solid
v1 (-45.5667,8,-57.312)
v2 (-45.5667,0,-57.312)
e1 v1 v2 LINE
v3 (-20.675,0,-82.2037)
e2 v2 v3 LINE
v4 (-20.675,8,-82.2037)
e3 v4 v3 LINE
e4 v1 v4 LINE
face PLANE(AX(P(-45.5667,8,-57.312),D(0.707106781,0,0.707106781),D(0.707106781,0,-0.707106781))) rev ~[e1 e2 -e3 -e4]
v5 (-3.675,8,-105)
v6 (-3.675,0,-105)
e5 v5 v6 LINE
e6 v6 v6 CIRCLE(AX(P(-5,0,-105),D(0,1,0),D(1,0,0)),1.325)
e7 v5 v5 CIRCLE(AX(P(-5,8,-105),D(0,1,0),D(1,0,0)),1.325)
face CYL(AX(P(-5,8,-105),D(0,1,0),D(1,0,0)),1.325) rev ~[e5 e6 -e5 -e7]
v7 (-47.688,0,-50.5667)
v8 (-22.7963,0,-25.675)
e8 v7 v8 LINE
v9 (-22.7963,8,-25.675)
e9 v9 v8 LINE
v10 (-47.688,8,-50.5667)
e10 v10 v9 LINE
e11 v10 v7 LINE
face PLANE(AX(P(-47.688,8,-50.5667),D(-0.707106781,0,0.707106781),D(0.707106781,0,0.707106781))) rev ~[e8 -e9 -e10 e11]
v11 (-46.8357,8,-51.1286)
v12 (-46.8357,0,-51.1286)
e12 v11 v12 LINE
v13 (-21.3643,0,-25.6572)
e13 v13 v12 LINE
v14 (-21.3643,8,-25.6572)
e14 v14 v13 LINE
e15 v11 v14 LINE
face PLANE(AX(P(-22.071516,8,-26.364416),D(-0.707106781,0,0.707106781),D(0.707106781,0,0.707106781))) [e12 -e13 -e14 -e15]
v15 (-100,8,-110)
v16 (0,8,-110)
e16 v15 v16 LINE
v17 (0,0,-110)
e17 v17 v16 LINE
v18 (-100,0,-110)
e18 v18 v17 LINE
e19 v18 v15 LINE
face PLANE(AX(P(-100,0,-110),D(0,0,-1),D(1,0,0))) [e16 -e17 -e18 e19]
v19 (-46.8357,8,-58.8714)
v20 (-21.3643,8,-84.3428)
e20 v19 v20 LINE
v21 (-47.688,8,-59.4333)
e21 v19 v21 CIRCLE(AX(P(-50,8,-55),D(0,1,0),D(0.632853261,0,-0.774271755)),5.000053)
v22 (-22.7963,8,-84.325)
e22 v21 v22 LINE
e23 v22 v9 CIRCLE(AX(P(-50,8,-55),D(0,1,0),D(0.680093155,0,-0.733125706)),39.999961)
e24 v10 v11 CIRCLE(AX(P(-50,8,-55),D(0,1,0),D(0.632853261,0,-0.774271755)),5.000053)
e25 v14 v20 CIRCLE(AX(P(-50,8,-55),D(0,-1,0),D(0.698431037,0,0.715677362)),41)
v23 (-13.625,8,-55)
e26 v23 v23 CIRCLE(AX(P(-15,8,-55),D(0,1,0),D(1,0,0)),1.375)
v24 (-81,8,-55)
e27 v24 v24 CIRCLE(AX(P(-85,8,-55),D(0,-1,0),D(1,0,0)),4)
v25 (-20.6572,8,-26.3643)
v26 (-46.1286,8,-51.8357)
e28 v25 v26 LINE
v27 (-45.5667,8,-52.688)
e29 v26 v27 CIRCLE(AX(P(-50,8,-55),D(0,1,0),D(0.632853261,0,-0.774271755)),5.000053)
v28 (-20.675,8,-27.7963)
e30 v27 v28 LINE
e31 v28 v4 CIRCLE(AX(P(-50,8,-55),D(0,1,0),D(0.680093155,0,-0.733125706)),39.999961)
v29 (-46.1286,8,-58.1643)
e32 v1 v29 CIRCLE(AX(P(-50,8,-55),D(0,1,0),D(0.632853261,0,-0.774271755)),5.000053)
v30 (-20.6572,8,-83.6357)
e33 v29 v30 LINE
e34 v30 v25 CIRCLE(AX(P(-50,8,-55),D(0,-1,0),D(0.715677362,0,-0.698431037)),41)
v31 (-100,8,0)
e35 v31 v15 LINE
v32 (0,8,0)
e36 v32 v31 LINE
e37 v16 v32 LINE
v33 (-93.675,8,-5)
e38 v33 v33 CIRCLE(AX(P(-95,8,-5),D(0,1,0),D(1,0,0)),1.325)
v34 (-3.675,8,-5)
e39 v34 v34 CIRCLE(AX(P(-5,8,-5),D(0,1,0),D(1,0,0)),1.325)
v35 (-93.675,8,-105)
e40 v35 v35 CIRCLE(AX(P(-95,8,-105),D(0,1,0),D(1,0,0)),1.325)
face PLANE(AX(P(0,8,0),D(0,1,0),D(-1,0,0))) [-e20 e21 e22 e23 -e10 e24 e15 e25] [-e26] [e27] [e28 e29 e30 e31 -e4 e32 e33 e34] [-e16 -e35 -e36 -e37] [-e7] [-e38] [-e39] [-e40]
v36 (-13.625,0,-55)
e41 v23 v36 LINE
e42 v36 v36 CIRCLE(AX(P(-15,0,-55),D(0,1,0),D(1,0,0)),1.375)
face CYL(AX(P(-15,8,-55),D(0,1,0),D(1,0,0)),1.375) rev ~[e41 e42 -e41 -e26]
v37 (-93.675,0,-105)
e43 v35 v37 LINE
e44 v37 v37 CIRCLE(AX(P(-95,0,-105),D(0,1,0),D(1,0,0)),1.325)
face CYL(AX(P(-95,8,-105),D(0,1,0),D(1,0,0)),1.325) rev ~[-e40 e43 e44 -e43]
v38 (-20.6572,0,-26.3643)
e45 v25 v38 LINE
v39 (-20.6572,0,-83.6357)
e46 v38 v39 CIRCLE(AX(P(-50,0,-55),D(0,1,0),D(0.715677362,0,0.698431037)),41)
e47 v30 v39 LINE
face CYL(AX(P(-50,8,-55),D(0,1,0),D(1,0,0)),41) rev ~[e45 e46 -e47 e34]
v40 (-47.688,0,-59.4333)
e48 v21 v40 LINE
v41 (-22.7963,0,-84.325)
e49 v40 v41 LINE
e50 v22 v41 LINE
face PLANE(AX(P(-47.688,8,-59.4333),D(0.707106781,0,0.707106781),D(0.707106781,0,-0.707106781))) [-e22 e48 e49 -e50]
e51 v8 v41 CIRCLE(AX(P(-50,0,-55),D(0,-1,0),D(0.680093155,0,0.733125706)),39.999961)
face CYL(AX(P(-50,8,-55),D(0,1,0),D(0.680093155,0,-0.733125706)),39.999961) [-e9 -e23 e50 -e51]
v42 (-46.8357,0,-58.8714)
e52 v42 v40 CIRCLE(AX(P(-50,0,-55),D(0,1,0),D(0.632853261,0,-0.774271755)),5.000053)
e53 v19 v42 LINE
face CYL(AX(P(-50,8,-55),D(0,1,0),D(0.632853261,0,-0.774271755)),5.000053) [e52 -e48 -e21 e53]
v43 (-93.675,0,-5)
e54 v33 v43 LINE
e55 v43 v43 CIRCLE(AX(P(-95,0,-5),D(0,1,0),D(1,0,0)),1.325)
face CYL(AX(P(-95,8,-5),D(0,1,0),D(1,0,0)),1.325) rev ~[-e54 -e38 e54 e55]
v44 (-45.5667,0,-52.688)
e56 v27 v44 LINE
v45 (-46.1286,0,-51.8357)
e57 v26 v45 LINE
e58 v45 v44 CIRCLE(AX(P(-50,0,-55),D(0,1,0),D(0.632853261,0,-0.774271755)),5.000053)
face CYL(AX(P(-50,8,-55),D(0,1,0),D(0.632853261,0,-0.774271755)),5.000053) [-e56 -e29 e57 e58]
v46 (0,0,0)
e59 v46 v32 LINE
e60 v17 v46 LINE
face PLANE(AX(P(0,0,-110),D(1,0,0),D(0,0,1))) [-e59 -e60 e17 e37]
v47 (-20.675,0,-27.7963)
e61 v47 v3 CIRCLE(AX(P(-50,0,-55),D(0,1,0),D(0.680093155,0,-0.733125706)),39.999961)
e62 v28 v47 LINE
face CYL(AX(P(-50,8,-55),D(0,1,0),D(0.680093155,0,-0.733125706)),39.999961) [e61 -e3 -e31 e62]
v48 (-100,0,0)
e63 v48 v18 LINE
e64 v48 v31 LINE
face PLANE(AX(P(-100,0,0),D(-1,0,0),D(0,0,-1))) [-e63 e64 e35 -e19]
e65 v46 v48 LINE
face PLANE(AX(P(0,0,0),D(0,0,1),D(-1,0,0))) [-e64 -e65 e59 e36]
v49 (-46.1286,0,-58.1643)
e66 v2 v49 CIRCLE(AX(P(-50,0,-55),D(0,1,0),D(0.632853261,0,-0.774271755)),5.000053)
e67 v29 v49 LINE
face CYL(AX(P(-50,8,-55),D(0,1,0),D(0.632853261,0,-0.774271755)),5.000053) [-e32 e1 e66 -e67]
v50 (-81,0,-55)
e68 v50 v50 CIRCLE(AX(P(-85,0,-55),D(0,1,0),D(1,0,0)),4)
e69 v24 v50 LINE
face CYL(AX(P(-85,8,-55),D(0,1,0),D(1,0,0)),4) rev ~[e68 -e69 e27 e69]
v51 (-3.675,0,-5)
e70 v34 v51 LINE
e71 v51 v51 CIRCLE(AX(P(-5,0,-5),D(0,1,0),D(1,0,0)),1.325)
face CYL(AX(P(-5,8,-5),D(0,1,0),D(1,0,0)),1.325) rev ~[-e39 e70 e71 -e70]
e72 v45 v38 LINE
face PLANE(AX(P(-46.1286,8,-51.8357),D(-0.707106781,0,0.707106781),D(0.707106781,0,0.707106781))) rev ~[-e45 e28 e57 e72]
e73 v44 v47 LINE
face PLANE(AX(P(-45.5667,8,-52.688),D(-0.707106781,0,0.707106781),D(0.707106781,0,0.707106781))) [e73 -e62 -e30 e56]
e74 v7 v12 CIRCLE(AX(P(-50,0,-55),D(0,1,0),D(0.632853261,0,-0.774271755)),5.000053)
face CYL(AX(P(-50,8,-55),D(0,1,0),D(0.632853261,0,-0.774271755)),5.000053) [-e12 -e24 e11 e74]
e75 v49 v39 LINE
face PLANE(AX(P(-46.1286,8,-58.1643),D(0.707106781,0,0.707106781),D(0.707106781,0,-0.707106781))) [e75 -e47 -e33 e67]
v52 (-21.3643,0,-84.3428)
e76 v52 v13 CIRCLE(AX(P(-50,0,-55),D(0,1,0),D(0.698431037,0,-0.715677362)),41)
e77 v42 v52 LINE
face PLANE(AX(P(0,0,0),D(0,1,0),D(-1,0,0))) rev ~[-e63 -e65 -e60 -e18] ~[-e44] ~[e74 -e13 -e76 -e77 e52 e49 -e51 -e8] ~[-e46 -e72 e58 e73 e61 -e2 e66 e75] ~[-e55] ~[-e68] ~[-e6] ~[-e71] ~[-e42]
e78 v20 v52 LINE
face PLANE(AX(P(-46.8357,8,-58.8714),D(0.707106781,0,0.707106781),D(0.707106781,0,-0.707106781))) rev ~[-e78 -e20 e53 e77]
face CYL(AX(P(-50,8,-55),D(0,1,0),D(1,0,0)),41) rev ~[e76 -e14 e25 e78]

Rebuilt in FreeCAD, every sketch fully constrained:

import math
import FreeCAD as App
import Part
import Sketcher

V = App.Vector

doc = App.newDocument("Part")
body = doc.addObject("PartDesign::Body", "Body")

sketch1 = body.newObject("Sketcher::SketchObject", "Sketch")
sketch1.AttachmentSupport = (doc.getObject("XZ_Plane"), [""])
sketch1.MapMode = "FlatFace"
sketch1.addGeometry(Part.LineSegment(V(-100, 0, 0), V(0, 0, 0)), False)
sketch1.addGeometry(Part.LineSegment(V(0, 0, 0), V(0, -110, 0)), False)
sketch1.addGeometry(Part.LineSegment(V(0, -110, 0), V(-100, -110, 0)), False)
sketch1.addGeometry(Part.LineSegment(V(-100, -110, 0), V(-100, 0, 0)), False)
sketch1.addConstraint(Sketcher.Constraint("Coincident", 0, 2, 1, 1))
sketch1.addConstraint(Sketcher.Constraint("Coincident", 1, 2, 2, 1))
sketch1.addConstraint(Sketcher.Constraint("Coincident", 2, 2, 3, 1))
sketch1.addConstraint(Sketcher.Constraint("Coincident", 3, 2, 0, 1))
sketch1.addConstraint(Sketcher.Constraint("Horizontal", 0))
sketch1.addConstraint(Sketcher.Constraint("Vertical", 1))
sketch1.addConstraint(Sketcher.Constraint("Horizontal", 2))
sketch1.addConstraint(Sketcher.Constraint("Vertical", 3))
sketch1.addConstraint(Sketcher.Constraint("Coincident", 0, 2, -1, 1))
sketch1.addConstraint(Sketcher.Constraint("DistanceX", 0, 1, 0, 2, 100.0))
sketch1.addConstraint(Sketcher.Constraint("DistanceY", 1, 2, 1, 1, 110.0))
pad1 = body.newObject("PartDesign::Pad", "Pad")
pad1.Profile = sketch1
pad1.Length = 8
pad1.Reversed = True

sketch2 = body.newObject("Sketcher::SketchObject", "Sketch001")
sketch2.AttachmentSupport = (doc.getObject("XZ_Plane"), [""])
sketch2.MapMode = "FlatFace"
sketch2.AttachmentOffset = App.Placement(V(0, 0, -8), App.Rotation())
sketch2.addGeometry(Part.Circle(V(-95, -5, 0), V(0, 0, 1), 1.3), False)
sketch2.addGeometry(Part.Circle(V(-95, -105, 0), V(0, 0, 1), 1.3), False)
sketch2.addGeometry(Part.Circle(V(-5, -5, 0), V(0, 0, 1), 1.3), False)
sketch2.addGeometry(Part.Circle(V(-5, -105, 0), V(0, 0, 1), 1.3), False)
sketch2.addConstraint(Sketcher.Constraint("Equal", 0, 1))
sketch2.addConstraint(Sketcher.Constraint("Equal", 1, 2))
sketch2.addConstraint(Sketcher.Constraint("Equal", 2, 3))
sketch2.addConstraint(Sketcher.Constraint("Horizontal", 0, 3, 2, 3))
sketch2.addConstraint(Sketcher.Constraint("Horizontal", 1, 3, 3, 3))
sketch2.addConstraint(Sketcher.Constraint("Vertical", 0, 3, 1, 3))
sketch2.addConstraint(Sketcher.Constraint("Vertical", 2, 3, 3, 3))
sketch2.addConstraint(Sketcher.Constraint("Diameter", 0, 2.65))
sketch2.addConstraint(Sketcher.Constraint("DistanceY", 0, 3, -1, 1, 5.0))
sketch2.addConstraint(Sketcher.Constraint("DistanceX", 2, 3, -1, 1, 5.0))
sketch2.addConstraint(Sketcher.Constraint("DistanceX", 0, 3, -1, 1, 95.0))
sketch2.addConstraint(Sketcher.Constraint("DistanceY", 1, 3, -1, 1, 105.0))
pocket1 = body.newObject("PartDesign::Pocket", "Pocket")
pocket1.Profile = sketch2
pocket1.Length = 20
pocket1.Reversed = True

sketch3 = body.newObject("Sketcher::SketchObject", "Sketch002")
sketch3.AttachmentSupport = (doc.getObject("XZ_Plane"), [""])
sketch3.MapMode = "FlatFace"
sketch3.AttachmentOffset = App.Placement(V(0, 0, -8), App.Rotation())
sketch3.addGeometry(Part.ArcOfCircle(Part.Circle(V(-50, -55, 0), V(0, 0, 1), 41), math.radians(46), math.radians(314)), False)
sketch3.addGeometry(Part.LineSegment(V(-21.4, -25.7, 0), V(-46.8, -51.1, 0)), False)
sketch3.addGeometry(Part.ArcOfCircle(Part.Circle(V(-50, -55, 0), V(0, 0, 1), 5), math.radians(50.74), math.radians(62.46)), False)
sketch3.addGeometry(Part.LineSegment(V(-47.7, -50.6, 0), V(-22.8, -25.7, 0)), False)
sketch3.addGeometry(Part.ArcOfCircle(Part.Circle(V(-50, -55, 0), V(0, 0, 1), 40), math.radians(47), math.radians(313)), False)
sketch3.addGeometry(Part.LineSegment(V(-22.8, -84.3, 0), V(-47.7, -59.4, 0)), False)
sketch3.addGeometry(Part.ArcOfCircle(Part.Circle(V(-50, -55, 0), V(0, 0, 1), 5), math.radians(-62.46), math.radians(-50.74)), False)
sketch3.addGeometry(Part.LineSegment(V(-46.8, -58.9, 0), V(-21.4, -84.3, 0)), False)
sketch3.addGeometry(Part.LineSegment(V(-20.7, -83.6, 0), V(-46.1, -58.2, 0)), False)
sketch3.addGeometry(Part.ArcOfCircle(Part.Circle(V(-50, -55, 0), V(0, 0, 1), 5), math.radians(-39.26), math.radians(-27.54)), False)
sketch3.addGeometry(Part.LineSegment(V(-45.6, -57.3, 0), V(-20.7, -82.2, 0)), False)
sketch3.addGeometry(Part.ArcOfCircle(Part.Circle(V(-50, -55, 0), V(0, 0, 1), 40), math.radians(-43), math.radians(43)), False)
sketch3.addGeometry(Part.LineSegment(V(-20.7, -27.8, 0), V(-45.6, -52.7, 0)), False)
sketch3.addGeometry(Part.ArcOfCircle(Part.Circle(V(-50, -55, 0), V(0, 0, 1), 5), math.radians(27.54), math.radians(39.26)), False)
sketch3.addGeometry(Part.LineSegment(V(-46.1, -51.8, 0), V(-20.7, -26.4, 0)), False)
sketch3.addGeometry(Part.ArcOfCircle(Part.Circle(V(-50, -55, 0), V(0, 0, 1), 41), math.radians(-44), math.radians(44)), False)
sketch3.addGeometry(Part.Circle(V(-85, -55, 0), V(0, 0, 1), 4), False)
sketch3.addGeometry(Part.Circle(V(-15, -55, 0), V(0, 0, 1), 1.4), False)
sketch3.addConstraint(Sketcher.Constraint("Coincident", 0, 1, 1, 1))
sketch3.addConstraint(Sketcher.Constraint("Coincident", 1, 2, 2, 1))
sketch3.addConstraint(Sketcher.Constraint("Coincident", 2, 2, 3, 1))
sketch3.addConstraint(Sketcher.Constraint("Coincident", 3, 2, 4, 1))
sketch3.addConstraint(Sketcher.Constraint("Coincident", 4, 2, 5, 1))
sketch3.addConstraint(Sketcher.Constraint("Coincident", 5, 2, 6, 1))
sketch3.addConstraint(Sketcher.Constraint("Coincident", 6, 2, 7, 1))
sketch3.addConstraint(Sketcher.Constraint("Coincident", 7, 2, 0, 2))
sketch3.addConstraint(Sketcher.Constraint("Coincident", 8, 2, 9, 1))
sketch3.addConstraint(Sketcher.Constraint("Coincident", 9, 2, 10, 1))
sketch3.addConstraint(Sketcher.Constraint("Coincident", 10, 2, 11, 1))
sketch3.addConstraint(Sketcher.Constraint("Coincident", 11, 2, 12, 1))
sketch3.addConstraint(Sketcher.Constraint("Coincident", 12, 2, 13, 1))
sketch3.addConstraint(Sketcher.Constraint("Coincident", 13, 2, 14, 1))
sketch3.addConstraint(Sketcher.Constraint("Coincident", 14, 2, 15, 2))
sketch3.addConstraint(Sketcher.Constraint("Coincident", 15, 1, 8, 1))
sketch3.addConstraint(Sketcher.Constraint("Coincident", 2, 3, 0, 3))
sketch3.addConstraint(Sketcher.Constraint("Coincident", 4, 3, 0, 3))
sketch3.addConstraint(Sketcher.Constraint("Coincident", 6, 3, 0, 3))
sketch3.addConstraint(Sketcher.Constraint("Coincident", 9, 3, 0, 3))
sketch3.addConstraint(Sketcher.Constraint("Coincident", 11, 3, 0, 3))
sketch3.addConstraint(Sketcher.Constraint("Coincident", 13, 3, 0, 3))
sketch3.addConstraint(Sketcher.Constraint("Coincident", 15, 3, 0, 3))
sketch3.addConstraint(Sketcher.Constraint("Equal", 2, 6))
sketch3.addConstraint(Sketcher.Constraint("Equal", 6, 9))
sketch3.addConstraint(Sketcher.Constraint("Equal", 4, 11))
sketch3.addConstraint(Sketcher.Constraint("Equal", 9, 13))
sketch3.addConstraint(Sketcher.Constraint("Equal", 0, 15))
sketch3.addConstraint(Sketcher.Constraint("Parallel", 1, 3))
sketch3.addConstraint(Sketcher.Constraint("Perpendicular", 3, 5))
sketch3.addConstraint(Sketcher.Constraint("Parallel", 5, 7))
sketch3.addConstraint(Sketcher.Constraint("Parallel", 7, 8))
sketch3.addConstraint(Sketcher.Constraint("Parallel", 8, 10))
sketch3.addConstraint(Sketcher.Constraint("Perpendicular", 10, 12))
sketch3.addConstraint(Sketcher.Constraint("Parallel", 12, 14))
sketch3.addConstraint(Sketcher.Constraint("Horizontal", 15, 3, 16, 3))
sketch3.addConstraint(Sketcher.Constraint("Horizontal", 16, 3, 17, 3))
sketch3.addConstraint(Sketcher.Constraint("Vertical", 3, 2, 4, 2))
sketch3.addConstraint(Sketcher.Constraint("Vertical", 2, 2, 5, 2))
sketch3.addConstraint(Sketcher.Constraint("Vertical", 1, 2, 6, 2))
sketch3.addConstraint(Sketcher.Constraint("Vertical", 10, 2, 11, 2))
sketch3.addConstraint(Sketcher.Constraint("Vertical", 8, 2, 13, 2))
sketch3.addConstraint(Sketcher.Constraint("Equal", 7, 8))
sketch3.addConstraint(Sketcher.Constraint("Equal", 5, 10))
sketch3.addConstraint(Sketcher.Constraint("Diameter", 16, 8.0))
sketch3.addConstraint(Sketcher.Constraint("Radius", 0, 41.0))
sketch3.addConstraint(Sketcher.Constraint("Radius", 2, 5.0))
sketch3.addConstraint(Sketcher.Constraint("Diameter", 17, 2.75))
sketch3.addConstraint(Sketcher.Constraint("DistanceX", 0, 3, -1, 1, 50.0))
sketch3.addConstraint(Sketcher.Constraint("DistanceY", 0, 3, -1, 1, 55.0))
sketch3.addConstraint(Sketcher.Constraint("Radius", 4, 40.0))
sketch3.addConstraint(Sketcher.Constraint("DistanceX", 16, 3, 0, 3, 35.0))
sketch3.addConstraint(Sketcher.Constraint("DistanceX", 0, 3, 17, 3, 35.0))
sketch3.addConstraint(Sketcher.Constraint("Distance", 1, 36.022))
sketch3.addConstraint(Sketcher.Constraint("DistanceX", 2, 2, -1, 1, 47.688))
pocket2 = body.newObject("PartDesign::Pocket", "Pocket001")
pocket2.Profile = sketch3
pocket2.Length = 20
pocket2.Reversed = True

doc.recompute()
